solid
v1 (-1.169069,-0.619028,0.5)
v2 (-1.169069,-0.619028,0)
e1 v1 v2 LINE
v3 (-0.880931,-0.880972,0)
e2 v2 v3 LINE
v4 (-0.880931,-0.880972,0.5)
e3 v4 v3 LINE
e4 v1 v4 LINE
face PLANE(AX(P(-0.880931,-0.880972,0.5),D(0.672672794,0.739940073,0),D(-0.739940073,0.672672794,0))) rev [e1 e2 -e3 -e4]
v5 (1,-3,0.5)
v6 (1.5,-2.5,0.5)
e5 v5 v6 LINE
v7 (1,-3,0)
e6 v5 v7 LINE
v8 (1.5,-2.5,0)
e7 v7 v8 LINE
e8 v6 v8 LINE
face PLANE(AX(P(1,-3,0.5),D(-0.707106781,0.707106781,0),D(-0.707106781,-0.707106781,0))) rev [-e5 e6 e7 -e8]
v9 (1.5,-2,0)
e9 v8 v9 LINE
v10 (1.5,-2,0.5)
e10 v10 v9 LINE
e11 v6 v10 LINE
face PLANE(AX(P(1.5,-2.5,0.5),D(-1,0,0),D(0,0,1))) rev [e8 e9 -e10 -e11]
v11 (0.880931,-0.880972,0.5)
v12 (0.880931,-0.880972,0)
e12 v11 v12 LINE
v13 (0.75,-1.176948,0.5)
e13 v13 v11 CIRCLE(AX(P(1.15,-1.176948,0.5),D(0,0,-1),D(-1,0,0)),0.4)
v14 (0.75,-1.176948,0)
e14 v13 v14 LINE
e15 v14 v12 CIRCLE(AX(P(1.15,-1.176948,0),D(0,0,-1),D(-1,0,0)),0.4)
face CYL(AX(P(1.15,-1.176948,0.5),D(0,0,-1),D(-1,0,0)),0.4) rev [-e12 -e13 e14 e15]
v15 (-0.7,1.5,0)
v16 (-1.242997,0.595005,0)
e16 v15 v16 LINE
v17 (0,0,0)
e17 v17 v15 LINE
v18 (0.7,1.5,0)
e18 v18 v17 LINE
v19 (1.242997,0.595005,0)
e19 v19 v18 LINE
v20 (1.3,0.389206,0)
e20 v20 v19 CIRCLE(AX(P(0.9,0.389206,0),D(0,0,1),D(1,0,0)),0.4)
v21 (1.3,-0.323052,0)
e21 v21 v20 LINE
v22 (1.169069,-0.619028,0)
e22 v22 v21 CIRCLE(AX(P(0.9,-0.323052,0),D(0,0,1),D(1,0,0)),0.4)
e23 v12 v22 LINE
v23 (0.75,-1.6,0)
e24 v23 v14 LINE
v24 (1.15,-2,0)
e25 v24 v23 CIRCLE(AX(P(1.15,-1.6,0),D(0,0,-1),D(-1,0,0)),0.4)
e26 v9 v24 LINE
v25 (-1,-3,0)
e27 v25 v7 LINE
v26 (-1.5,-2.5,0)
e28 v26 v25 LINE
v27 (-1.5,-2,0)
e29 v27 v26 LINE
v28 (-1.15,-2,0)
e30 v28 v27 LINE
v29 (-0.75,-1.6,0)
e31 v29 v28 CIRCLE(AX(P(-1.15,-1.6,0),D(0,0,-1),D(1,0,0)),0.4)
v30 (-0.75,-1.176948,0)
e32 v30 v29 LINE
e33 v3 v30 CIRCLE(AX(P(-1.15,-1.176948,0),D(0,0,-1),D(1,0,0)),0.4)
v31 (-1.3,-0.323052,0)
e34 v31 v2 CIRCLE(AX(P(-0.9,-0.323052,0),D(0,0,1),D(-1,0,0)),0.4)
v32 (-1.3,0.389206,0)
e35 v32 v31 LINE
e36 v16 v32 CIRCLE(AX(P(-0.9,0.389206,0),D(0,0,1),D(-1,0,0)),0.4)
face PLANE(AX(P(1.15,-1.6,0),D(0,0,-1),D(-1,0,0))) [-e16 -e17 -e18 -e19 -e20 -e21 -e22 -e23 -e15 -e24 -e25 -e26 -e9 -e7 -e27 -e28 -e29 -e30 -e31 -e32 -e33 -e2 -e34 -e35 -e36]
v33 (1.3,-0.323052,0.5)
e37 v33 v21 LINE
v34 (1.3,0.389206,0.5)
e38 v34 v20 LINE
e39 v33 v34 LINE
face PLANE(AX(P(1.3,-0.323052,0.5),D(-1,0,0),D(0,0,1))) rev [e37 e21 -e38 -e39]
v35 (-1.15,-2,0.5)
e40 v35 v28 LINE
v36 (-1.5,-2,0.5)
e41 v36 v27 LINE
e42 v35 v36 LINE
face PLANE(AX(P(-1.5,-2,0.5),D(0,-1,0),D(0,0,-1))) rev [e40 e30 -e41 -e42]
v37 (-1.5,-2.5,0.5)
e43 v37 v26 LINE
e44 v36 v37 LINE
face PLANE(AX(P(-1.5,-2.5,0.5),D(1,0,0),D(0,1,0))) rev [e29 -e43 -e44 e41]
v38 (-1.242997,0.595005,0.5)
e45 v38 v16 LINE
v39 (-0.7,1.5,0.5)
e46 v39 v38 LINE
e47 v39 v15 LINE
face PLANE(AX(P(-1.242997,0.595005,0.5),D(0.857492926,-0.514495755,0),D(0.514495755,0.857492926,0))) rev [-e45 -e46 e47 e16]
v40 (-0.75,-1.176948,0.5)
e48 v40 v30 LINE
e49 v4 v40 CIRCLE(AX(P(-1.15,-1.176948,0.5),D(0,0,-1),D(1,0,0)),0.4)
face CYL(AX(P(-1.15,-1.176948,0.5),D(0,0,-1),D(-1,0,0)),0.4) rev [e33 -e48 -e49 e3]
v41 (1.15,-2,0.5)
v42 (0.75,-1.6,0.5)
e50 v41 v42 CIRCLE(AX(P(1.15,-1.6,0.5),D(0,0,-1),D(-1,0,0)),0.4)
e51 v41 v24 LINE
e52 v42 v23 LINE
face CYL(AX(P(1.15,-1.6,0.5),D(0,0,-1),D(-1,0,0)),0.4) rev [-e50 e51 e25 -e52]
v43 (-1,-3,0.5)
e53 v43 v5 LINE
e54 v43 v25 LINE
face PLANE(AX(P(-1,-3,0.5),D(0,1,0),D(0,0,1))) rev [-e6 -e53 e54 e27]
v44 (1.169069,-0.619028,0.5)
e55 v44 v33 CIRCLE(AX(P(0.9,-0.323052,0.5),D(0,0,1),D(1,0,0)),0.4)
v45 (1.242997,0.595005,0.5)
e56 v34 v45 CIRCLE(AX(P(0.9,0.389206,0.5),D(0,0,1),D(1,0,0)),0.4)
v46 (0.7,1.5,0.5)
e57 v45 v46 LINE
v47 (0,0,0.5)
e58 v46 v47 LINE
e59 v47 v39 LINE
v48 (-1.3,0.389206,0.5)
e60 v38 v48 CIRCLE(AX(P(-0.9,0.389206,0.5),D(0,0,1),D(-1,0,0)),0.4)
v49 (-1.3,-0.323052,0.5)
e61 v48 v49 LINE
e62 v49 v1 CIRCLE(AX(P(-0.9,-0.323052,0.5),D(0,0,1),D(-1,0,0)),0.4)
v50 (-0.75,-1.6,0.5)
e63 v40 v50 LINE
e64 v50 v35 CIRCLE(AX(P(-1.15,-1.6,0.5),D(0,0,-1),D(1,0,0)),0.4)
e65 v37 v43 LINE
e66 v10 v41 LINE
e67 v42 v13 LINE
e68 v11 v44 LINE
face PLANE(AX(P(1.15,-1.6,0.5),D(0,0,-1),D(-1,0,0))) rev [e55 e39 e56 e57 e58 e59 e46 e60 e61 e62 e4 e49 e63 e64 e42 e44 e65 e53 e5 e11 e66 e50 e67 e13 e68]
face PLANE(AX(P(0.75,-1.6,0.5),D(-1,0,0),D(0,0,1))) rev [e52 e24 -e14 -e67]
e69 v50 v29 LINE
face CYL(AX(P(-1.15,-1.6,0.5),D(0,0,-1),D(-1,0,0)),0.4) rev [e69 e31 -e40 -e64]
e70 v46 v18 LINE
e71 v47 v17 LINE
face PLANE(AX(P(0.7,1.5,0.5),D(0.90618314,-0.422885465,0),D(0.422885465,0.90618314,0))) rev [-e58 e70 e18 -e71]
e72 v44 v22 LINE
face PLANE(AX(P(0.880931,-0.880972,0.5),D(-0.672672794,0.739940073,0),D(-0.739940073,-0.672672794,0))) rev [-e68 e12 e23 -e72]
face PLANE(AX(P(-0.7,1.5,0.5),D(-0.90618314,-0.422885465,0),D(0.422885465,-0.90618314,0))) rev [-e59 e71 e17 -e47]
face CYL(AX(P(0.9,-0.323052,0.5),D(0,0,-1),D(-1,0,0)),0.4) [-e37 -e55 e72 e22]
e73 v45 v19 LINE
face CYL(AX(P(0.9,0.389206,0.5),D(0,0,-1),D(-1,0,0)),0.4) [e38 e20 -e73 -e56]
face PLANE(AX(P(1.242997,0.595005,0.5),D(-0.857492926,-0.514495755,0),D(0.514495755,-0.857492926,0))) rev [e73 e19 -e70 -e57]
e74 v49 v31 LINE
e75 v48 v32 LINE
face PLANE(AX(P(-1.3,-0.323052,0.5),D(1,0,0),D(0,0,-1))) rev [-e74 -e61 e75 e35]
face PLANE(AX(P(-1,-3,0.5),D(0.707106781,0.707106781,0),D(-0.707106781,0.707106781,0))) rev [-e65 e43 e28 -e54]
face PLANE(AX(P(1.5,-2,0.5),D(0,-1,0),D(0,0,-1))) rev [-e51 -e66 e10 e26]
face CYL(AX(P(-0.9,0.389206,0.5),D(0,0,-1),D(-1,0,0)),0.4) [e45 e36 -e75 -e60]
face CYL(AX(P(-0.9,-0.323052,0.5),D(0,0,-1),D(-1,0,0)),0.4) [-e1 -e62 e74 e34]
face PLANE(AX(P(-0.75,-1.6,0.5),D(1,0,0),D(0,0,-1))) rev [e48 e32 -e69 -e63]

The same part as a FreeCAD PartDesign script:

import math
import FreeCAD as App
import Part
import Sketcher
from FreeCAD import Vector
Q = App.Units.Quantity

doc = App.newDocument("Part")
body = doc.addObject("PartDesign::Body", "Body")

# Sketch on XY plane
sketch1 = doc.addObject("Sketcher::SketchObject", "Sketch")
body.addObject(sketch1)
sketch1.AttachmentSupport = (doc.XY_Plane, [""])
sketch1.MapMode = "FlatFace"
sketch1.addGeometry([
    Part.LineSegment(Vector(-1, -3, 0), Vector(1, -3, 0)),  # 0
    Part.LineSegment(Vector(1, -3, 0), Vector(1.5, -2.5, 0)),  # 1
    Part.LineSegment(Vector(1.5, -2.5, 0), Vector(1.5, -2, 0)),  # 2
    Part.LineSegment(Vector(1.5, -2, 0), Vector(1.15, -2, 0)),  # 3
    Part.ArcOfCircle(Part.Circle(Vector(1.15, -1.6, 0), Vector(0, 0, 1), 0.4), math.radians(-180), math.radians(-90)),  # 4
    Part.LineSegment(Vector(0.75, -1.6, 0), Vector(0.75, -1.176948, 0)),  # 5
    Part.ArcOfCircle(Part.Circle(Vector(1.15, -1.176948, 0), Vector(0, 0, 1), 0.4), math.radians(132.27369), math.radians(180)),  # 6
    Part.LineSegment(Vector(0.880931, -0.880972, 0), Vector(1.169069, -0.619028, 0)),  # 7
    Part.ArcOfCircle(Part.Circle(Vector(0.9, -0.323052, 0), Vector(0, 0, 1), 0.4), math.radians(-47.72631), math.radians(0)),  # 8
    Part.LineSegment(Vector(1.3, -0.323052, 0), Vector(1.3, 0.389206, 0)),  # 9
    Part.ArcOfCircle(Part.Circle(Vector(0.9, 0.389206, 0), Vector(0, 0, 1), 0.4), math.radians(0), math.radians(30.963757)),  # 10
    Part.LineSegment(Vector(1.242997, 0.595005, 0), Vector(0.7, 1.5, 0)),  # 11
    Part.LineSegment(Vector(0.7, 1.5, 0), Vector(0, 0, 0)),  # 12
    Part.LineSegment(Vector(0, 0, 0), Vector(-0.7, 1.5, 0)),  # 13
    Part.LineSegment(Vector(-0.7, 1.5, 0), Vector(-1.242997, 0.595005, 0)),  # 14
    Part.ArcOfCircle(Part.Circle(Vector(-0.9, 0.389206, 0), Vector(0, 0, 1), 0.4), math.radians(149.036243), math.radians(180)),  # 15
    Part.LineSegment(Vector(-1.3, 0.389206, 0), Vector(-1.3, -0.323052, 0)),  # 16
    Part.ArcOfCircle(Part.Circle(Vector(-0.9, -0.323052, 0), Vector(0, 0, 1), 0.4), math.radians(-180), math.radians(-132.27369)),  # 17
    Part.LineSegment(Vector(-1.169069, -0.619028, 0), Vector(-0.880931, -0.880972, 0)),  # 18
    Part.ArcOfCircle(Part.Circle(Vector(-1.15, -1.176948, 0), Vector(0, 0, 1), 0.4), math.radians(0), math.radians(47.72631)),  # 19
    Part.LineSegment(Vector(-0.75, -1.176948, 0), Vector(-0.75, -1.6, 0)),  # 20
    Part.ArcOfCircle(Part.Circle(Vector(-1.15, -1.6, 0), Vector(0, 0, 1), 0.4), math.radians(-90), math.radians(0)),  # 21
    Part.LineSegment(Vector(-1.15, -2, 0), Vector(-1.5, -2, 0)),  # 22
    Part.LineSegment(Vector(-1.5, -2, 0), Vector(-1.5, -2.5, 0)),  # 23
    Part.LineSegment(Vector(-1.5, -2.5, 0), Vector(-1, -3, 0)),  # 24
], False)
sketch1.addConstraint([
    Sketcher.Constraint("Coincident", 0, 2, 1, 1),
    Sketcher.Constraint("Coincident", 1, 2, 2, 1),
    Sketcher.Constraint("Coincident", 2, 2, 3, 1),
    Sketcher.Constraint("Tangent", 3, 2, 4, 2),
    Sketcher.Constraint("Tangent", 4, 1, 5, 1),
    Sketcher.Constraint("Tangent", 5, 2, 6, 2),
    Sketcher.Constraint("Tangent", 6, 1, 7, 1),
    Sketcher.Constraint("Tangent", 7, 2, 8, 1),
    Sketcher.Constraint("Tangent", 8, 2, 9, 1),
    Sketcher.Constraint("Tangent", 9, 2, 10, 1),
    Sketcher.Constraint("Tangent", 10, 2, 11, 1),
    Sketcher.Constraint("Coincident", 11, 2, 12, 1),
    Sketcher.Constraint("Coincident", 12, 2, 13, 1),
    Sketcher.Constraint("Coincident", 13, 2, 14, 1),
    Sketcher.Constraint("Tangent", 14, 2, 15, 1),
    Sketcher.Constraint("Tangent", 15, 2, 16, 1),
    Sketcher.Constraint("Tangent", 16, 2, 17, 1),
    Sketcher.Constraint("Tangent", 17, 2, 18, 1),
    Sketcher.Constraint("Tangent", 18, 2, 19, 2),
    Sketcher.Constraint("Tangent", 19, 1, 20, 1),
    Sketcher.Constraint("Tangent", 20, 2, 21, 2),
    Sketcher.Constraint("Tangent", 21, 1, 22, 1),
    Sketcher.Constraint("Coincident", 22, 2, 23, 1),
    Sketcher.Constraint("Coincident", 23, 2, 24, 1),
    Sketcher.Constraint("Coincident", 24, 2, 0, 1),
    Sketcher.Constraint("Horizontal", 0),
    Sketcher.Constraint("Vertical", 2),
    Sketcher.Constraint("Horizontal", 3),
    Sketcher.Constraint("Vertical", 5),
    Sketcher.Constraint("Vertical", 9),
    Sketcher.Constraint("Vertical", 16),
    Sketcher.Constraint("Vertical", 20),
    Sketcher.Constraint("Horizontal", 22),
    Sketcher.Constraint("Vertical", 23),
    Sketcher.Constraint("Coincident", 12, 2, -1, 1),
    Sketcher.Constraint("Equal", 4, 6),
    Sketcher.Constraint("Equal", 6, 8),
    Sketcher.Constraint("Equal", 8, 10),
    Sketcher.Constraint("Equal", 10, 15),
    Sketcher.Constraint("Equal", 15, 17),
    Sketcher.Constraint("Equal", 17, 19),
    Sketcher.Constraint("Equal", 19, 21),
    Sketcher.Constraint("Symmetric", 10, 3, 15, 3, -2),
    Sketcher.Constraint("Symmetric", 6, 3, 19, 3, -2),
    Sketcher.Constraint("Symmetric", 11, 2, 13, 2, -2),
    Sketcher.Constraint("Symmetric", 2, 2, 22, 2, -2),
    Sketcher.Constraint("Perpendicular", 1, 24),
    Sketcher.Constraint("Horizontal", 8, 3, 17, 3),
    Sketcher.Constraint("Horizontal", 1, 2, 23, 2),
    Sketcher.Constraint("Equal", 1, 24),
    Sketcher.Constraint("Radius", 4, Q("0.4 mm")),
    Sketcher.Constraint("DistanceX", 0, 1, 0, 2, Q("2 mm")),
    Sketcher.Constraint("DistanceY", 2, 1, 2, 2, Q("0.5 mm")),
    Sketcher.Constraint("DistanceY", 0, 2, -1, 1, Q("3 mm")),
    Sketcher.Constraint("DistanceY", 2, 2, -1, 1, Q("2 mm")),
    Sketcher.Constraint("DistanceX", 3, 2, 3, 1, Q("0.35 mm")),
    Sketcher.Constraint("DistanceX", -1, 1, 8, 3, Q("0.9 mm")),
    Sketcher.Constraint("DistanceX", -1, 1, 11, 2, Q("0.7 mm")),
    Sketcher.Constraint("DistanceY", -1, 1, 11, 2, Q("1.5 mm")),
    Sketcher.Constraint("DistanceY", 9, 1, 9, 2, Q("0.712258 mm")),
    Sketcher.Constraint("DistanceY", 9, 2, 10, 2, Q("0.205798 mm")),
    Sketcher.Constraint("DistanceY", 5, 1, 5, 2, Q("0.423052 mm")),
])
pad1 = doc.addObject("PartDesign::Pad", "Pad")
body.addObject(pad1)
pad1.Profile = sketch1
pad1.Length = 0.5

doc.recompute()
